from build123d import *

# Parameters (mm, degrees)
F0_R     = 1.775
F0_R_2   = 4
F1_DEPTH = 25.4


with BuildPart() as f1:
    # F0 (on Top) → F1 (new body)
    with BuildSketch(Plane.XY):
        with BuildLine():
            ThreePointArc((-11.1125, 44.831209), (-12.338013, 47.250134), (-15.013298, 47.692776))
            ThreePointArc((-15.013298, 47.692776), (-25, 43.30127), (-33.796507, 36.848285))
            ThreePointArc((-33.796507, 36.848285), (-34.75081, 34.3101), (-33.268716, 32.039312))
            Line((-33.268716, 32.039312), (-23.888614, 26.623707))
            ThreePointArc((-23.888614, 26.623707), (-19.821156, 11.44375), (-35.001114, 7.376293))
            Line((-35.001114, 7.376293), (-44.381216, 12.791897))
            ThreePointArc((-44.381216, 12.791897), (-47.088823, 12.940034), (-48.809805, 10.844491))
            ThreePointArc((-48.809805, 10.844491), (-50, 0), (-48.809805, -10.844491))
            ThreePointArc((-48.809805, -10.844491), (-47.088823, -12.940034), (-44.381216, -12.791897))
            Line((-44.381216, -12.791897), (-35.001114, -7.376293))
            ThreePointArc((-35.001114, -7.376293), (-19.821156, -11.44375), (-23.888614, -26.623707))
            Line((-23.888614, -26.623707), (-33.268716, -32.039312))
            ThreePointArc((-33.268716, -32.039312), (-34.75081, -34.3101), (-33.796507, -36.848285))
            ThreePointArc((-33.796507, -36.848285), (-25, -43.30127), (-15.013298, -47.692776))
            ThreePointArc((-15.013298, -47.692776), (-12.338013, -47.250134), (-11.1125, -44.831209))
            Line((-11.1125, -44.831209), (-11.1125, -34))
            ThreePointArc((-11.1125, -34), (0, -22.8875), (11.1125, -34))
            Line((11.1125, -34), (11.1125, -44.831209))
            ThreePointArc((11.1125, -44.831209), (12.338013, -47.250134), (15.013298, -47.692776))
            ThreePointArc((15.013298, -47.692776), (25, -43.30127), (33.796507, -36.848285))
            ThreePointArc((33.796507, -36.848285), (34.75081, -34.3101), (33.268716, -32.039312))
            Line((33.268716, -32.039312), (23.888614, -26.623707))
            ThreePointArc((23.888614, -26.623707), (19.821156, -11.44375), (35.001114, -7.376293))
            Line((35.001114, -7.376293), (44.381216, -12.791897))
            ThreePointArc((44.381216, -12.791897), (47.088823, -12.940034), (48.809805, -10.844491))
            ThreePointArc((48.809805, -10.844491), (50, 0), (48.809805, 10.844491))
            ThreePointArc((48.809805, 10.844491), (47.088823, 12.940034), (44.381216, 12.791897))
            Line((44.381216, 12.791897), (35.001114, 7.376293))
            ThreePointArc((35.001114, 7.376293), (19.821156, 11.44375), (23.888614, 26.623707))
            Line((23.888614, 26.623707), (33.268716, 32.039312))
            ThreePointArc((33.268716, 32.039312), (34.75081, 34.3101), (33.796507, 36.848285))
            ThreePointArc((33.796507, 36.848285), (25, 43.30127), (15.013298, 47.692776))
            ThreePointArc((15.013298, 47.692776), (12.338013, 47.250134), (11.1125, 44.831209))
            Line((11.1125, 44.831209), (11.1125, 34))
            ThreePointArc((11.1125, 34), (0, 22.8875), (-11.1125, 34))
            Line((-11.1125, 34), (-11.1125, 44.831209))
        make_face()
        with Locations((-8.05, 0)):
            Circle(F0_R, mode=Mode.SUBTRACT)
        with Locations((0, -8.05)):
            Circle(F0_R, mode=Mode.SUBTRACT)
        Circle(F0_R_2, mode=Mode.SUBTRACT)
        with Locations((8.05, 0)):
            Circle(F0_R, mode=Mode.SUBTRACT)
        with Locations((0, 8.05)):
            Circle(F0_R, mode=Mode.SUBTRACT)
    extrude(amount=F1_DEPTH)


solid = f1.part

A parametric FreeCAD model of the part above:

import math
import FreeCAD as App
import Part
import Sketcher
Q = App.Units.Quantity

doc = App.newDocument("Part")
body = doc.addObject("PartDesign::Body", "Body")

# Sketch on XY plane
sketch1 = body.newObject("Sketcher::SketchObject", "Sketch")
sketch1.AttachmentSupport = (doc.getObject("XY_Plane"), [""])
sketch1.MapMode = "FlatFace"
sketch1.addGeometry([
    Part.ArcOfCircle(Part.Circle(App.Vector(-14.1, 44.8, 0), App.Vector(0, 0, 1), 3), math.radians(0), math.radians(107)),  # 0
    Part.ArcOfCircle(Part.Circle(App.Vector(0, 0, 0), App.Vector(0, 0, 1), 50), math.radians(107), math.radians(133)),  # 1
    Part.ArcOfCircle(Part.Circle(App.Vector(-31.8, 34.6, 0), App.Vector(0, 0, 1), 3), math.radians(133), math.radians(240)),  # 2
    Part.LineSegment(App.Vector(-33.3, 32, 0), App.Vector(-23.9, 26.6, 0)),  # 3
    Part.ArcOfCircle(Part.Circle(App.Vector(-29.4, 17, 0), App.Vector(0, 0, 1), 11.1), math.radians(-120), math.radians(60)),  # 4
    Part.LineSegment(App.Vector(-35, 7.4, 0), App.Vector(-44.4, 12.8, 0)),  # 5
    Part.ArcOfCircle(Part.Circle(App.Vector(-45.9, 10.2, 0), App.Vector(0, 0, 1), 3), math.radians(60), math.radians(167)),  # 6
    Part.ArcOfCircle(Part.Circle(App.Vector(0, 0, 0), App.Vector(0, 0, 1), 50), math.radians(167), math.radians(193)),  # 7
    Part.ArcOfCircle(Part.Circle(App.Vector(-45.9, -10.2, 0), App.Vector(0, 0, 1), 3), math.radians(-167), math.radians(-60)),  # 8
    Part.LineSegment(App.Vector(-44.4, -12.8, 0), App.Vector(-35, -7.4, 0)),  # 9
    Part.ArcOfCircle(Part.Circle(App.Vector(-29.4, -17, 0), App.Vector(0, 0, 1), 11.1), math.radians(-60), math.radians(120)),  # 10
    Part.LineSegment(App.Vector(-23.9, -26.6, 0), App.Vector(-33.3, -32, 0)),  # 11
    Part.ArcOfCircle(Part.Circle(App.Vector(-31.8, -34.6, 0), App.Vector(0, 0, 1), 3), math.radians(120), math.radians(227)),  # 12
    Part.ArcOfCircle(Part.Circle(App.Vector(0, 0, 0), App.Vector(0, 0, 1), 50), math.radians(-133), math.radians(-107)),  # 13
    Part.ArcOfCircle(Part.Circle(App.Vector(-14.1, -44.8, 0), App.Vector(0, 0, 1), 3), math.radians(-107), math.radians(0)),  # 14
    Part.LineSegment(App.Vector(-11.1, -44.8, 0), App.Vector(-11.1, -34, 0)),  # 15
    Part.ArcOfCircle(Part.Circle(App.Vector(0, -34, 0), App.Vector(0, 0, 1), 11.1), math.radians(0), math.radians(180)),  # 16
    Part.LineSegment(App.Vector(11.1, -34, 0), App.Vector(11.1, -44.8, 0)),  # 17
    Part.ArcOfCircle(Part.Circle(App.Vector(14.1, -44.8, 0), App.Vector(0, 0, 1), 3), math.radians(180), math.radians(287)),  # 18
    Part.ArcOfCircle(Part.Circle(App.Vector(0, 0, 0), App.Vector(0, 0, 1), 50), math.radians(-73), math.radians(-47)),  # 19
    Part.ArcOfCircle(Part.Circle(App.Vector(31.8, -34.6, 0), App.Vector(0, 0, 1), 3), math.radians(-47), math.radians(60)),  # 20
    Part.LineSegment(App.Vector(33.3, -32, 0), App.Vector(23.9, -26.6, 0)),  # 21
    Part.ArcOfCircle(Part.Circle(App.Vector(29.4, -17, 0), App.Vector(0, 0, 1), 11.1), math.radians(60), math.radians(240)),  # 22
    Part.LineSegment(App.Vector(35, -7.4, 0), App.Vector(44.4, -12.8, 0)),  # 23
    Part.ArcOfCircle(Part.Circle(App.Vector(45.9, -10.2, 0), App.Vector(0, 0, 1), 3), math.radians(-120), math.radians(-13)),  # 24
    Part.ArcOfCircle(Part.Circle(App.Vector(0, 0, 0), App.Vector(0, 0, 1), 50), math.radians(-13), math.radians(13)),  # 25
    Part.ArcOfCircle(Part.Circle(App.Vector(45.9, 10.2, 0), App.Vector(0, 0, 1), 3), math.radians(13), math.radians(120)),  # 26
    Part.LineSegment(App.Vector(44.4, 12.8, 0), App.Vector(35, 7.4, 0)),  # 27
    Part.ArcOfCircle(Part.Circle(App.Vector(29.4, 17, 0), App.Vector(0, 0, 1), 11.1), math.radians(120), math.radians(300)),  # 28
    Part.LineSegment(App.Vector(23.9, 26.6, 0), App.Vector(33.3, 32, 0)),  # 29
    Part.ArcOfCircle(Part.Circle(App.Vector(31.8, 34.6, 0), App.Vector(0, 0, 1), 3), math.radians(-60), math.radians(47)),  # 30
    Part.ArcOfCircle(Part.Circle(App.Vector(0, 0, 0), App.Vector(0, 0, 1), 50), math.radians(47), math.radians(73)),  # 31
    Part.ArcOfCircle(Part.Circle(App.Vector(14.1, 44.8, 0), App.Vector(0, 0, 1), 3), math.radians(73), math.radians(180)),  # 32
    Part.LineSegment(App.Vector(11.1, 44.8, 0), App.Vector(11.1, 34, 0)),  # 33
    Part.ArcOfCircle(Part.Circle(App.Vector(0, 34, 0), App.Vector(0, 0, 1), 11.1), math.radians(180), math.radians(360)),  # 34
    Part.LineSegment(App.Vector(-11.1, 34, 0), App.Vector(-11.1, 44.8, 0)),  # 35
    Part.Circle(App.Vector(0, -8.1, 0), App.Vector(0, 0, 1), 1.8),  # 36
    Part.Circle(App.Vector(-8.1, 0, 0), App.Vector(0, 0, 1), 1.8),  # 37
    Part.Circle(App.Vector(0, 0, 0), App.Vector(0, 0, 1), 4),  # 38
    Part.Circle(App.Vector(8.1, 0, 0), App.Vector(0, 0, 1), 1.8),  # 39
    Part.Circle(App.Vector(0, 8.1, 0), App.Vector(0, 0, 1), 1.8),  # 40
], False)
sketch1.addConstraint([
    Sketcher.Constraint("Tangent", 0, 2, 1, 1),
    Sketcher.Constraint("Tangent", 1, 2, 2, 1),
    Sketcher.Constraint("Tangent", 2, 2, 3, 1),
    Sketcher.Constraint("Tangent", 3, 2, 4, 2),
    Sketcher.Constraint("Tangent", 4, 1, 5, 1),
    Sketcher.Constraint("Tangent", 5, 2, 6, 1),
    Sketcher.Constraint("Tangent", 6, 2, 7, 1),
    Sketcher.Constraint("Tangent", 7, 2, 8, 1),
    Sketcher.Constraint("Tangent", 8, 2, 9, 1),
    Sketcher.Constraint("Tangent", 9, 2, 10, 2),
    Sketcher.Constraint("Tangent", 10, 1, 11, 1),
    Sketcher.Constraint("Tangent", 11, 2, 12, 1),
    Sketcher.Constraint("Tangent", 12, 2, 13, 1),
    Sketcher.Constraint("Tangent", 13, 2, 14, 1),
    Sketcher.Constraint("Tangent", 14, 2, 15, 1),
    Sketcher.Constraint("Tangent", 15, 2, 16, 2),
    Sketcher.Constraint("Tangent", 16, 1, 17, 1),
    Sketcher.Constraint("Tangent", 17, 2, 18, 1),
    Sketcher.Constraint("Tangent", 18, 2, 19, 1),
    Sketcher.Constraint("Tangent", 19, 2, 20, 1),
    Sketcher.Constraint("Tangent", 20, 2, 21, 1),
    Sketcher.Constraint("Tangent", 21, 2, 22, 2),
    Sketcher.Constraint("Tangent", 22, 1, 23, 1),
    Sketcher.Constraint("Tangent", 23, 2, 24, 1),
    Sketcher.Constraint("Tangent", 24, 2, 25, 1),
    Sketcher.Constraint("Tangent", 25, 2, 26, 1),
    Sketcher.Constraint("Tangent", 26, 2, 27, 1),
    Sketcher.Constraint("Tangent", 27, 2, 28, 2),
    Sketcher.Constraint("Tangent", 28, 1, 29, 1),
    Sketcher.Constraint("Tangent", 29, 2, 30, 1),
    Sketcher.Constraint("Tangent", 30, 2, 31, 1),
    Sketcher.Constraint("Tangent", 31, 2, 32, 1),
    Sketcher.Constraint("Tangent", 32, 2, 33, 1),
    Sketcher.Constraint("Tangent", 33, 2, 34, 2),
    Sketcher.Constraint("Tangent", 34, 1, 35, 1),
    Sketcher.Constraint("Tangent", 35, 2, 0, 1),
    Sketcher.Constraint("Vertical", 15),
    Sketcher.Constraint("Vertical", 17),
    Sketcher.Constraint("Vertical", 33),
    Sketcher.Constraint("Vertical", 35),
    Sketcher.Constraint("Coincident", 1, 3, -1, 1),
    Sketcher.Constraint("Coincident", 13, 3, -1, 1),
    Sketcher.Constraint("Coincident", 19, 3, -1, 1),
    Sketcher.Constraint("Coincident", 31, 3, -1, 1),
    Sketcher.Constraint("Coincident", 38, 3, -1, 1),
    Sketcher.Constraint("Equal", 0, 2),
    Sketcher.Constraint("Equal", 2, 6),
    Sketcher.Constraint("Equal", 6, 8),
    Sketcher.Constraint("Equal", 4, 10),
    Sketcher.Constraint("Equal", 8, 12),
    Sketcher.Constraint("Equal", 1, 13),
    Sketcher.Constraint("Equal", 12, 14),
    Sketcher.Constraint("Equal", 10, 16),
    Sketcher.Constraint("Equal", 14, 18),
    Sketcher.Constraint("Equal", 13, 19),
    Sketcher.Constraint("Equal", 18, 20),
    Sketcher.Constraint("Equal", 16, 22),
    Sketcher.Constraint("Equal", 20, 24),
    Sketcher.Constraint("Equal", 7, 25),
    Sketcher.Constraint("Equal", 24, 26),
    Sketcher.Constraint("Equal", 22, 28),
    Sketcher.Constraint("Equal", 26, 30),
    Sketcher.Constraint("Equal", 19, 31),
    Sketcher.Constraint("Equal", 30, 32),
    Sketcher.Constraint("Equal", 28, 34),
    Sketcher.Constraint("Equal", 36, 37),
    Sketcher.Constraint("Equal", 37, 39),
    Sketcher.Constraint("Equal", 39, 40),
    Sketcher.Constraint("Symmetric", 4, 3, 22, 3, -1, 1),
    Sketcher.Constraint("Symmetric", 6, 3, 24, 3, -1, 1),
    Sketcher.Constraint("Symmetric", 8, 3, 26, 3, -1, 1),
    Sketcher.Constraint("Symmetric", 10, 3, 28, 3, -1, 1),
    Sketcher.Constraint("Symmetric", 16, 3, 34, 3, -1, 1),
    Sketcher.Constraint("Symmetric", 37, 3, 39, 3, -1, 1),
    Sketcher.Constraint("Symmetric", 36, 3, 40, 3, -1, 1),
    Sketcher.Constraint("Symmetric", 10, 3, 22, 3, -2),
    Sketcher.Constraint("Symmetric", 8, 3, 24, 3, -2),
    Sketcher.Constraint("PointOnObject", 16, 3, -2),
    Sketcher.Constraint("PointOnObject", 36, 3, -2),
    Sketcher.Constraint("PointOnObject", 37, 3, -1),
    Sketcher.Constraint("Parallel", 3, 5),
    Sketcher.Constraint("Parallel", 9, 11),
    Sketcher.Constraint("Parallel", 5, 21),
    Sketcher.Constraint("Parallel", 27, 29),
    Sketcher.Constraint("Equal", 3, 5),
    Sketcher.Constraint("Diameter", 38, Q("8 mm")),
    Sketcher.Constraint("Radius", 0, Q("3 mm")),
    Sketcher.Constraint("Diameter", 36, Q("3.55 mm")),
    Sketcher.Constraint("Angle", 3, Q("-30.000003 deg")),
    Sketcher.Constraint("DistanceY", -1, 1, 4, 3, Q("17 mm")),
    Sketcher.Constraint("DistanceY", 16, 3, -1, 1, Q("34 mm")),
    Sketcher.Constraint("Radius", 4, Q("11.1125 mm")),
    Sketcher.Constraint("DistanceY", 36, 3, -1, 1, Q("8.05 mm")),
    Sketcher.Constraint("DistanceX", 37, 3, -1, 1, Q("8.05 mm")),
    Sketcher.Constraint("Radius", 7, Q("50.000021 mm")),
    Sketcher.Constraint("Radius", 1, Q("50.000005 mm")),
    Sketcher.Constraint("Distance", 3, Q("10.831209 mm")),
])
pad1 = body.newObject("PartDesign::Pad", "Pad")
pad1.Profile = sketch1
pad1.Length = 25.4

doc.recompute()
